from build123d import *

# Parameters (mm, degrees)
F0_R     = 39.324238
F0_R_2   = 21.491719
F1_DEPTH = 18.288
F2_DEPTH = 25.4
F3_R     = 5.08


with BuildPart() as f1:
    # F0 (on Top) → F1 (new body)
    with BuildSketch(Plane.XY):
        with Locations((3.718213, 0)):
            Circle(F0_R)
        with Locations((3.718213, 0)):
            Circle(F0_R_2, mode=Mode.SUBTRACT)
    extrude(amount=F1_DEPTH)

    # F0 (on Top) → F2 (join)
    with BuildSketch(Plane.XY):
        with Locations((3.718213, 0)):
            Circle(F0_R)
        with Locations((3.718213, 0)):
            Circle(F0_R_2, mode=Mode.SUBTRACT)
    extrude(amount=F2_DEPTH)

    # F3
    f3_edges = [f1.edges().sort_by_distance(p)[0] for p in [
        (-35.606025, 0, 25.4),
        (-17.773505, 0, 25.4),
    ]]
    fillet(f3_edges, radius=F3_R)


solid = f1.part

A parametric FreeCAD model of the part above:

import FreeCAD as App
import Part
import Sketcher
Q = App.Units.Quantity


def edges_at(feature, points):
    """Names of the edges that pass closest to the given points."""
    edges = feature.Shape.Edges
    near = lambda p: min(range(len(edges)), key=lambda i: edges[i].distToShape(Part.Vertex(*p))[0])
    return sorted({f"Edge{near(p) + 1}" for p in points})

doc = App.newDocument("Part")
params = doc.addObject("Spreadsheet::Sheet", "Params")
for row, (alias, value) in enumerate([
    ("pad1_length", "0.72 in"),
    ("pad2_length", "1 in"),
    ("fillet_radius", "0.2 in"),
], start=1):
    params.set(f"A{row}", alias)
    params.set(f"B{row}", "=" + value)
    params.setAlias(f"B{row}", alias)

body = doc.addObject("PartDesign::Body", "Body")

sketch1 = doc.addObject("Sketcher::SketchObject", "Sketch")
body.addObject(sketch1)
sketch1.AttachmentSupport = (doc.XY_Plane, [""])
sketch1.MapMode = "FlatFace"
sketch1.addGeometry(Part.Circle(App.Vector(4, 0, 0), App.Vector(0, 0, 1), 39), False)
sketch1.addGeometry(Part.Circle(App.Vector(4, 0, 0), App.Vector(0, 0, 1), 21), False)
sketch1.addConstraint(Sketcher.Constraint("Coincident", 1, 3, 0, 3))
sketch1.addConstraint(Sketcher.Constraint("PointOnObject", 0, 3, -1))
sketch1.addConstraint(Sketcher.Constraint("Diameter", 0, Q("78.648476 mm")))
sketch1.addConstraint(Sketcher.Constraint("Diameter", 1, Q("42.983438 mm")))
sketch1.addConstraint(Sketcher.Constraint("DistanceX", -1, 1, 0, 3, Q("3.718213 mm")))
pad1 = doc.addObject("PartDesign::Pad", "Pad")
body.addObject(pad1)
pad1.Profile = sketch1
pad1.setExpression("Length", "Params.pad1_length")

sketch2 = doc.addObject("Sketcher::SketchObject", "Sketch001")
body.addObject(sketch2)
sketch2.AttachmentSupport = (doc.XY_Plane, [""])
sketch2.MapMode = "FlatFace"
sketch2.addGeometry(Part.Circle(App.Vector(4, 0, 0), App.Vector(0, 0, 1), 39), False)
sketch2.addGeometry(Part.Circle(App.Vector(4, 0, 0), App.Vector(0, 0, 1), 21), False)
sketch2.addConstraint(Sketcher.Constraint("Coincident", 1, 3, 0, 3))
sketch2.addConstraint(Sketcher.Constraint("PointOnObject", 0, 3, -1))
sketch2.addConstraint(Sketcher.Constraint("Diameter", 0, Q("78.648476 mm")))
sketch2.addConstraint(Sketcher.Constraint("Diameter", 1, Q("42.983438 mm")))
sketch2.addConstraint(Sketcher.Constraint("DistanceX", -1, 1, 0, 3, Q("3.718213 mm")))
pad2 = doc.addObject("PartDesign::Pad", "Pad001")
body.addObject(pad2)
pad2.Profile = sketch2
pad2.setExpression("Length", "Params.pad2_length")
doc.recompute()

fillet = doc.addObject("PartDesign::Fillet", "Fillet")
body.addObject(fillet)
fillet.Base = (pad2, edges_at(pad2, [(-35.606, 0, 25.4), (-17.774, 0, 25.4)]))
fillet.setExpression("Radius", "Params.fillet_radius")

doc.recompute()
